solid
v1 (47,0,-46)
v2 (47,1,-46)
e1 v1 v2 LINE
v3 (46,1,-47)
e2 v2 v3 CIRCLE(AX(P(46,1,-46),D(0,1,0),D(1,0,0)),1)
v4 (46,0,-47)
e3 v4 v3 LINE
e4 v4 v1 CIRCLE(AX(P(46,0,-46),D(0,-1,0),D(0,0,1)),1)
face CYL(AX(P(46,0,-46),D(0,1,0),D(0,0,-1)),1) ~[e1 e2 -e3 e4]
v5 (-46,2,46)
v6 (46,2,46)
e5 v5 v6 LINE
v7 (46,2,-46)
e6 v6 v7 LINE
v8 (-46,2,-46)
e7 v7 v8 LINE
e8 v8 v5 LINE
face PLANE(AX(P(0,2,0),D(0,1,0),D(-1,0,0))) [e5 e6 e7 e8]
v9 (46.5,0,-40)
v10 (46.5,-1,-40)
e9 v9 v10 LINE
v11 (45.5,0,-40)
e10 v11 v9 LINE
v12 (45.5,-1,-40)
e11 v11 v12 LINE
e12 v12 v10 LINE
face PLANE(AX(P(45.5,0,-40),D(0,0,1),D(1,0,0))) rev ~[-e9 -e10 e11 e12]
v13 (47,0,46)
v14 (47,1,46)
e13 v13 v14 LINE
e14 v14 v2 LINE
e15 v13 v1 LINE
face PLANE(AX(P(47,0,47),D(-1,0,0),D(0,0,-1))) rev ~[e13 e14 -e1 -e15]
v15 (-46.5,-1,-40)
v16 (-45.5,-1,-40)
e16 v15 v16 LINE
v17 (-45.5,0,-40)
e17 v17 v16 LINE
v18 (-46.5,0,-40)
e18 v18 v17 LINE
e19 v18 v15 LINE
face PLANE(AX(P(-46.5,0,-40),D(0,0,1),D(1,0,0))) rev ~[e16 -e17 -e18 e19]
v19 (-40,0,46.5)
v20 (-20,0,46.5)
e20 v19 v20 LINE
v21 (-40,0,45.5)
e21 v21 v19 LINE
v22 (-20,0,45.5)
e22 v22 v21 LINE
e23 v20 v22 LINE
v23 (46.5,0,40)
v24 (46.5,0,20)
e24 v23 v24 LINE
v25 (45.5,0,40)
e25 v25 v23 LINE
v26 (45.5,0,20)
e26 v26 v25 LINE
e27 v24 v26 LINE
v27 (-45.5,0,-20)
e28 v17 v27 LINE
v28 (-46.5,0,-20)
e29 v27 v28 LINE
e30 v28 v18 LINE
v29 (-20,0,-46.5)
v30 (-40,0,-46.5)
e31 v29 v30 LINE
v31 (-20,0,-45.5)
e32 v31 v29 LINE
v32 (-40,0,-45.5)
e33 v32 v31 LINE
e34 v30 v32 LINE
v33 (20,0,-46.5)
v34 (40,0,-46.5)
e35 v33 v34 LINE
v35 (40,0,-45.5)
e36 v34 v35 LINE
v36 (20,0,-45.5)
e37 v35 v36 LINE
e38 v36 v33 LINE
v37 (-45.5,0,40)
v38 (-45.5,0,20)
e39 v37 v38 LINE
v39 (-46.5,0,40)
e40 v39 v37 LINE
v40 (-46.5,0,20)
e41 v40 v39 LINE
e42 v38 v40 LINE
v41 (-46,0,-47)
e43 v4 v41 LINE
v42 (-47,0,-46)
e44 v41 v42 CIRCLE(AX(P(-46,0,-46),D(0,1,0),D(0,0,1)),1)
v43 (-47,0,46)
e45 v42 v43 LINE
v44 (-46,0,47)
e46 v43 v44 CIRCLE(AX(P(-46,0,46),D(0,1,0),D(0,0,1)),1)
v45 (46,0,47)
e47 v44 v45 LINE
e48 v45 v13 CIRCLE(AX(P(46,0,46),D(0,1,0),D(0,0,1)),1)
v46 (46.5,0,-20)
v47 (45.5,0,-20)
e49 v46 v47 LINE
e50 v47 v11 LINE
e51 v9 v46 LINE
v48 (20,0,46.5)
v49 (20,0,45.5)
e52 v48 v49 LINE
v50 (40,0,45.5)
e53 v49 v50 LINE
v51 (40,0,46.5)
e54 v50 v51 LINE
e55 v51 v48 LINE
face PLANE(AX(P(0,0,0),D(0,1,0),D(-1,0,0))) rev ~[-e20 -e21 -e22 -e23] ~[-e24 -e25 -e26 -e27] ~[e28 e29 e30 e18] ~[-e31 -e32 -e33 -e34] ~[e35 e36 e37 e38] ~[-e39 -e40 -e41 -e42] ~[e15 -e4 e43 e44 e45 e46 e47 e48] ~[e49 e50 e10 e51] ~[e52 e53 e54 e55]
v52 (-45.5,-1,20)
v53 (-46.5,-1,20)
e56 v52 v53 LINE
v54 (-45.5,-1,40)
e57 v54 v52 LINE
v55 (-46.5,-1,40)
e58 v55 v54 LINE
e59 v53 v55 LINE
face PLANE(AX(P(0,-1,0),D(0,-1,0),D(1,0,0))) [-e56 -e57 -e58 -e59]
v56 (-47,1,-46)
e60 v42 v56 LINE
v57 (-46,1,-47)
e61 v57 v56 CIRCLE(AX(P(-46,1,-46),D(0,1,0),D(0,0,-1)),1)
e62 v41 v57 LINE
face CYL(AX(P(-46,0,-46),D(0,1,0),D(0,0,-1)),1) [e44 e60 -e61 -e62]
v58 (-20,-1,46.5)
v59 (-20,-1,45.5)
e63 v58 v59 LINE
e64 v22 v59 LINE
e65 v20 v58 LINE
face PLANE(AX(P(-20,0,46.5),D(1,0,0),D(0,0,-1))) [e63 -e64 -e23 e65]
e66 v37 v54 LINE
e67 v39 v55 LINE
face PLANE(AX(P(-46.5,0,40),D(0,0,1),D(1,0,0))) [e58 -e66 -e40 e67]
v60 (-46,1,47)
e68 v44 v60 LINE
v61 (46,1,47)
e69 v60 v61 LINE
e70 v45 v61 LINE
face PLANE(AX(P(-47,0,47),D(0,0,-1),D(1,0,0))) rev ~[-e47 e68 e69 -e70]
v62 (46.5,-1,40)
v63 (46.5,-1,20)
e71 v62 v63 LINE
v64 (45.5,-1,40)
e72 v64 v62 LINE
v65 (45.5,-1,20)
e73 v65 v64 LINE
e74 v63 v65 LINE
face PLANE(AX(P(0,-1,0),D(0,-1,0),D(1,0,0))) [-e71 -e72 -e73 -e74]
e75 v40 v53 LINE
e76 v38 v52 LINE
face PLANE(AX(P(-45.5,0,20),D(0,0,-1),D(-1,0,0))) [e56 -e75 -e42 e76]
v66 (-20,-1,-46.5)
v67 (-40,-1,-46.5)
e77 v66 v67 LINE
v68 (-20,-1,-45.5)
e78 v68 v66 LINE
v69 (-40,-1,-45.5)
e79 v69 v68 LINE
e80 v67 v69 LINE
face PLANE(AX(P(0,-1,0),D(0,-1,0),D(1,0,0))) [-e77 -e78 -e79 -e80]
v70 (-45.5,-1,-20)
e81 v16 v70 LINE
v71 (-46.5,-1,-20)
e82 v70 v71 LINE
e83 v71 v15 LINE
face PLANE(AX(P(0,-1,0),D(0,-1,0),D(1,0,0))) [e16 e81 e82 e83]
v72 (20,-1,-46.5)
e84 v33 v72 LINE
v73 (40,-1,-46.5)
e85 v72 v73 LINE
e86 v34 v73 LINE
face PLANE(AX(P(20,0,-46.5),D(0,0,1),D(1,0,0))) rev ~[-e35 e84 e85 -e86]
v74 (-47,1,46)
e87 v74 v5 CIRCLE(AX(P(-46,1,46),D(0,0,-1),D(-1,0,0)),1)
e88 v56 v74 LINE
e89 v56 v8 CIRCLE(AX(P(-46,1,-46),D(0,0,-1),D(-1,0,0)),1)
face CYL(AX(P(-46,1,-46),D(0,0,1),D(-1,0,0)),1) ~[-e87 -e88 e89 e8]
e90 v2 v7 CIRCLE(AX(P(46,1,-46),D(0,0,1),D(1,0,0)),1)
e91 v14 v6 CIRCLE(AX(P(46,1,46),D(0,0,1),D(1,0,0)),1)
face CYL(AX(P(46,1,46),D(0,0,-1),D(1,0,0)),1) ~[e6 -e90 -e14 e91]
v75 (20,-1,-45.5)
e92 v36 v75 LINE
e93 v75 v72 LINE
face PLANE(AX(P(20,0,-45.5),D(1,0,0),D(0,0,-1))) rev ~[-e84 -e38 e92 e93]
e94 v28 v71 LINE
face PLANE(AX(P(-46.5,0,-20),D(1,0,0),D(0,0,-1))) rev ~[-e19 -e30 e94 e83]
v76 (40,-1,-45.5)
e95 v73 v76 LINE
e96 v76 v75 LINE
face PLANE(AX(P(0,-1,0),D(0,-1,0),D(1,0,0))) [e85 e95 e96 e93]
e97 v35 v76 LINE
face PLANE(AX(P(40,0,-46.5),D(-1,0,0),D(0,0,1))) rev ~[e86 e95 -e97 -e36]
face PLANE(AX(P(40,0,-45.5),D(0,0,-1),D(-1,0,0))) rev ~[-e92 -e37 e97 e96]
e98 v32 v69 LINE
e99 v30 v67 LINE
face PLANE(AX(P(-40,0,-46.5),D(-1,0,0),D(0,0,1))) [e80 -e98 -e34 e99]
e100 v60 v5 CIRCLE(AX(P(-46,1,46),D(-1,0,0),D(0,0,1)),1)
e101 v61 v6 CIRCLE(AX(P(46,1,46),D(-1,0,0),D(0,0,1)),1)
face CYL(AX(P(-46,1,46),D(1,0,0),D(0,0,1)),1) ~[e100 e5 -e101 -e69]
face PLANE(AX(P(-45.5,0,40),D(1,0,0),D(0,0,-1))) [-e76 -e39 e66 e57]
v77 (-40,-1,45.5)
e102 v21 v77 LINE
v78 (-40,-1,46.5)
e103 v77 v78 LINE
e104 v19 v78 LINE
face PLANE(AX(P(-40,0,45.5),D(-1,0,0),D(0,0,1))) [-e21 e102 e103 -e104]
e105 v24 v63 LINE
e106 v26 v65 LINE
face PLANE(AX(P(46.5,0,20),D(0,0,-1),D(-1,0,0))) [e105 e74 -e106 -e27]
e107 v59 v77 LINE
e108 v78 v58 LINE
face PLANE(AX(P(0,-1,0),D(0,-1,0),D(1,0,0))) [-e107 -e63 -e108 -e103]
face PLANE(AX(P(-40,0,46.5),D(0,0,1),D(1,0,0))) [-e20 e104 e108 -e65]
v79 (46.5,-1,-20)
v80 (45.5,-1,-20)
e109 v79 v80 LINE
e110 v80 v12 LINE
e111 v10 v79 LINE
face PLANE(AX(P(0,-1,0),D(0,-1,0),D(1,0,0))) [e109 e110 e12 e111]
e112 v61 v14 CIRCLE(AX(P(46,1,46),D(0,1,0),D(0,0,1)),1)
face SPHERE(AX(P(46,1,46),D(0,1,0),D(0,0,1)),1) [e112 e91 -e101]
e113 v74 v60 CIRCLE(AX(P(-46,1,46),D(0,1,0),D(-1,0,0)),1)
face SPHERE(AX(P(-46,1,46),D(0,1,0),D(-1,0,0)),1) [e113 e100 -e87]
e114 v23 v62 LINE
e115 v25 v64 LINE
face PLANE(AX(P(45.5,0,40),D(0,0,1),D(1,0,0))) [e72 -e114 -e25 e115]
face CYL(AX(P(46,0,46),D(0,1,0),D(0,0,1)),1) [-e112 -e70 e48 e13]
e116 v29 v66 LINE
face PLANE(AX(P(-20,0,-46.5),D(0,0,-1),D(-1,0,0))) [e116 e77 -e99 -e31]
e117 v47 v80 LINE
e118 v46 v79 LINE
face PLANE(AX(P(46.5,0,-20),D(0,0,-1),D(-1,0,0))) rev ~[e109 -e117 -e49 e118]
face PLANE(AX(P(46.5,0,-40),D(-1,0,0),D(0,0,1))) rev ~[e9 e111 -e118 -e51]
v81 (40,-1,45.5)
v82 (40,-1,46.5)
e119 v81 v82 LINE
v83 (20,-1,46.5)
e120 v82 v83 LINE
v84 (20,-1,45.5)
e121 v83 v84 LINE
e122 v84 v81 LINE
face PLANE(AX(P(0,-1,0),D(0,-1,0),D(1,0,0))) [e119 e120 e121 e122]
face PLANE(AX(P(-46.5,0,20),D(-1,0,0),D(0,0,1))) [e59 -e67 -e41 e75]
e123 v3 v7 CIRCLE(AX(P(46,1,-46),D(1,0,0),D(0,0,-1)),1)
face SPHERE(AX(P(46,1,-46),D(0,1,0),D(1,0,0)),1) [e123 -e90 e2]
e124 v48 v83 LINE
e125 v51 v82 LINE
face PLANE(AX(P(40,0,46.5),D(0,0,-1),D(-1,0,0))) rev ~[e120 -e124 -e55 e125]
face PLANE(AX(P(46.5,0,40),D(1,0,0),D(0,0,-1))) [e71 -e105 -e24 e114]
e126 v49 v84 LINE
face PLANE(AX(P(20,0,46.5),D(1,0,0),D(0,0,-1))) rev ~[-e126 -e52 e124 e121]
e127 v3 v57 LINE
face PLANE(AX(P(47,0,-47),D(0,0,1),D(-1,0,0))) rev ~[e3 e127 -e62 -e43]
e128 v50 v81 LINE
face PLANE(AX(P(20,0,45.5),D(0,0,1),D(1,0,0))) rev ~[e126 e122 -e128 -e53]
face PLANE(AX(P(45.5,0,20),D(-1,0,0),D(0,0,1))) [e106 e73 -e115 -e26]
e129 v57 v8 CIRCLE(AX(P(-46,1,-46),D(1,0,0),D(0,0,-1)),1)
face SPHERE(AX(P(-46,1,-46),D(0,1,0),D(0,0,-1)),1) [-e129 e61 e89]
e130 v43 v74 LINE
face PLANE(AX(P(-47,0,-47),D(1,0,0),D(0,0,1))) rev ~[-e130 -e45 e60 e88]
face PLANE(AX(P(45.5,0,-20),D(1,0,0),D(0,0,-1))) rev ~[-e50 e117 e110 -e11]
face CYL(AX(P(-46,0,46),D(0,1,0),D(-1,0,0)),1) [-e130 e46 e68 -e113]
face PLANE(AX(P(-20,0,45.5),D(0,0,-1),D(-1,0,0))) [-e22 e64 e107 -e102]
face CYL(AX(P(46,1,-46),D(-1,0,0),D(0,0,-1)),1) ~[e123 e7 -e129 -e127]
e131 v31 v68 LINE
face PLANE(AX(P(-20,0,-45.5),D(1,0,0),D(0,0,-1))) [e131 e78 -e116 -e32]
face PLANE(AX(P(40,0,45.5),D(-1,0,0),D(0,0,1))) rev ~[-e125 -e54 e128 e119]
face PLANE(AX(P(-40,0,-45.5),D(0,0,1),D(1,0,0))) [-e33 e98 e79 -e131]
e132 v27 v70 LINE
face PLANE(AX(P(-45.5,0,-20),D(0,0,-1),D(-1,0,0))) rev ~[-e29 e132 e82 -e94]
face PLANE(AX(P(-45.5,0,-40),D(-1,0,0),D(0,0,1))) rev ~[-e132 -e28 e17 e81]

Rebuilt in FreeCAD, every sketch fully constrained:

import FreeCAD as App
import Part
import Sketcher

V = App.Vector
Q = App.Units.Quantity


def edges_at(feature, points):
    """Names of the edges that pass closest to the given points."""
    edges = feature.Shape.Edges
    near = lambda p: min(range(len(edges)), key=lambda i: edges[i].distToShape(Part.Vertex(*p))[0])
    return sorted({f"Edge{near(p) + 1}" for p in points})

doc = App.newDocument("Part")
body = doc.addObject("PartDesign::Body", "Body")

# Sketch on XZ plane
sketch1 = body.newObject("Sketcher::SketchObject", "Sketch")
sketch1.AttachmentSupport = (doc.getObject("XZ_Plane"), [""])
sketch1.MapMode = "FlatFace"
sketch1.addGeometry([
    Part.LineSegment(V(-47, -47, 0), V(-47, 47, 0)),
    Part.LineSegment(V(-47, 47, 0), V(47, 47, 0)),
    Part.LineSegment(V(47, 47, 0), V(47, -47, 0)),
    Part.LineSegment(V(47, -47, 0), V(-47, -47, 0)),
], False)
sketch1.addConstraint([
    Sketcher.Constraint("Coincident", 0, 2, 1, 1),
    Sketcher.Constraint("Coincident", 1, 2, 2, 1),
    Sketcher.Constraint("Coincident", 2, 2, 3, 1),
    Sketcher.Constraint("Coincident", 3, 2, 0, 1),
    Sketcher.Constraint("Vertical", 0),
    Sketcher.Constraint("Horizontal", 1),
    Sketcher.Constraint("Vertical", 2),
    Sketcher.Constraint("Horizontal", 3),
    Sketcher.Constraint("Symmetric", 0, 2, 2, 2, -1, 1),
    Sketcher.Constraint("Equal", 3, 0),
    Sketcher.Constraint("DistanceX", 1, 1, 1, 2, Q("94 mm")),
])
pad1 = body.newObject("PartDesign::Pad", "Pad")
pad1.Profile = sketch1
pad1.Length = 2
pad1.Reversed = True

# Sketch on XZ plane
sketch2 = body.newObject("Sketcher::SketchObject", "Sketch001")
sketch2.AttachmentSupport = (doc.getObject("XZ_Plane"), [""])
sketch2.MapMode = "FlatFace"
sketch2.addGeometry([
    Part.LineSegment(V(-46.5, -20, 0), V(-46.5, -40, 0)),  # 0
    Part.LineSegment(V(-46.5, -40, 0), V(-45.5, -40, 0)),  # 1
    Part.LineSegment(V(-45.5, -40, 0), V(-45.5, -20, 0)),  # 2
    Part.LineSegment(V(-45.5, -20, 0), V(-46.5, -20, 0)),  # 3
    Part.LineSegment(V(-46.5, 20, 0), V(-45.5, 20, 0)),  # 4
    Part.LineSegment(V(-45.5, 20, 0), V(-45.5, 40, 0)),  # 5
    Part.LineSegment(V(-45.5, 40, 0), V(-46.5, 40, 0)),  # 6
    Part.LineSegment(V(-46.5, 40, 0), V(-46.5, 20, 0)),  # 7
    Part.LineSegment(V(-20, 46.5, 0), V(-40, 46.5, 0)),  # 8
    Part.LineSegment(V(-40, 46.5, 0), V(-40, 45.5, 0)),  # 9
    Part.LineSegment(V(-40, 45.5, 0), V(-20, 45.5, 0)),  # 10
    Part.LineSegment(V(-20, 45.5, 0), V(-20, 46.5, 0)),  # 11
    Part.LineSegment(V(40, 45.5, 0), V(40, 46.5, 0)),  # 12
    Part.LineSegment(V(40, 46.5, 0), V(20, 46.5, 0)),  # 13
    Part.LineSegment(V(20, 46.5, 0), V(20, 45.5, 0)),  # 14
    Part.LineSegment(V(20, 45.5, 0), V(40, 45.5, 0)),  # 15
    Part.LineSegment(V(46.5, 40, 0), V(45.5, 40, 0)),  # 16
    Part.LineSegment(V(45.5, 40, 0), V(45.5, 20, 0)),  # 17
    Part.LineSegment(V(45.5, 20, 0), V(46.5, 20, 0)),  # 18
    Part.LineSegment(V(46.5, 20, 0), V(46.5, 40, 0)),  # 19
    Part.LineSegment(V(45.5, -20, 0), V(45.5, -40, 0)),  # 20
    Part.LineSegment(V(45.5, -40, 0), V(46.5, -40, 0)),  # 21
    Part.LineSegment(V(46.5, -40, 0), V(46.5, -20, 0)),  # 22
    Part.LineSegment(V(46.5, -20, 0), V(45.5, -20, 0)),  # 23
    Part.LineSegment(V(40, -46.5, 0), V(40, -45.5, 0)),  # 24
    Part.LineSegment(V(40, -45.5, 0), V(20, -45.5, 0)),  # 25
    Part.LineSegment(V(20, -45.5, 0), V(20, -46.5, 0)),  # 26
    Part.LineSegment(V(20, -46.5, 0), V(40, -46.5, 0)),  # 27
    Part.LineSegment(V(-20, -45.5, 0), V(-40, -45.5, 0)),  # 28
    Part.LineSegment(V(-40, -45.5, 0), V(-40, -46.5, 0)),  # 29
    Part.LineSegment(V(-40, -46.5, 0), V(-20, -46.5, 0)),  # 30
    Part.LineSegment(V(-20, -46.5, 0), V(-20, -45.5, 0)),  # 31
], False)
sketch2.addConstraint([
    Sketcher.Constraint("Coincident", 0, 2, 1, 1),
    Sketcher.Constraint("Coincident", 1, 2, 2, 1),
    Sketcher.Constraint("Coincident", 2, 2, 3, 1),
    Sketcher.Constraint("Coincident", 3, 2, 0, 1),
    Sketcher.Constraint("Coincident", 4, 2, 5, 1),
    Sketcher.Constraint("Coincident", 5, 2, 6, 1),
    Sketcher.Constraint("Coincident", 6, 2, 7, 1),
    Sketcher.Constraint("Coincident", 7, 2, 4, 1),
    Sketcher.Constraint("Coincident", 8, 2, 9, 1),
    Sketcher.Constraint("Coincident", 9, 2, 10, 1),
    Sketcher.Constraint("Coincident", 10, 2, 11, 1),
    Sketcher.Constraint("Coincident", 11, 2, 8, 1),
    Sketcher.Constraint("Coincident", 12, 2, 13, 1),
    Sketcher.Constraint("Coincident", 13, 2, 14, 1),
    Sketcher.Constraint("Coincident", 14, 2, 15, 1),
    Sketcher.Constraint("Coincident", 15, 2, 12, 1),
    Sketcher.Constraint("Coincident", 16, 2, 17, 1),
    Sketcher.Constraint("Coincident", 17, 2, 18, 1),
    Sketcher.Constraint("Coincident", 18, 2, 19, 1),
    Sketcher.Constraint("Coincident", 19, 2, 16, 1),
    Sketcher.Constraint("Coincident", 20, 2, 21, 1),
    Sketcher.Constraint("Coincident", 21, 2, 22, 1),
    Sketcher.Constraint("Coincident", 22, 2, 23, 1),
    Sketcher.Constraint("Coincident", 23, 2, 20, 1),
    Sketcher.Constraint("Coincident", 24, 2, 25, 1),
    Sketcher.Constraint("Coincident", 25, 2, 26, 1),
    Sketcher.Constraint("Coincident", 26, 2, 27, 1),
    Sketcher.Constraint("Coincident", 27, 2, 24, 1),
    Sketcher.Constraint("Coincident", 28, 2, 29, 1),
    Sketcher.Constraint("Coincident", 29, 2, 30, 1),
    Sketcher.Constraint("Coincident", 30, 2, 31, 1),
    Sketcher.Constraint("Coincident", 31, 2, 28, 1),
    Sketcher.Constraint("Vertical", 0),
    Sketcher.Constraint("Horizontal", 1),
    Sketcher.Constraint("Vertical", 2),
    Sketcher.Constraint("Horizontal", 3),
    Sketcher.Constraint("Horizontal", 4),
    Sketcher.Constraint("Vertical", 5),
    Sketcher.Constraint("Horizontal", 6),
    Sketcher.Constraint("Vertical", 7),
    Sketcher.Constraint("Horizontal", 8),
    Sketcher.Constraint("Vertical", 9),
    Sketcher.Constraint("Horizontal", 10),
    Sketcher.Constraint("Vertical", 11),
    Sketcher.Constraint("Vertical", 12),
    Sketcher.Constraint("Horizontal", 13),
    Sketcher.Constraint("Vertical", 14),
    Sketcher.Constraint("Horizontal", 15),
    Sketcher.Constraint("Horizontal", 16),
    Sketcher.Constraint("Vertical", 17),
    Sketcher.Constraint("Horizontal", 18),
    Sketcher.Constraint("Vertical", 19),
    Sketcher.Constraint("Vertical", 20),
    Sketcher.Constraint("Horizontal", 21),
    Sketcher.Constraint("Vertical", 22),
    Sketcher.Constraint("Horizontal", 23),
    Sketcher.Constraint("Vertical", 24),
    Sketcher.Constraint("Horizontal", 25),
    Sketcher.Constraint("Vertical", 26),
    Sketcher.Constraint("Horizontal", 27),
    Sketcher.Constraint("Horizontal", 28),
    Sketcher.Constraint("Vertical", 29),
    Sketcher.Constraint("Horizontal", 30),
    Sketcher.Constraint("Vertical", 31),
    Sketcher.Constraint("Symmetric", 1, 2, 16, 2, -1, 1),
    Sketcher.Constraint("Symmetric", 3, 2, 18, 2, -1, 1),
    Sketcher.Constraint("Symmetric", 5, 2, 20, 2, -1, 1),
    Sketcher.Constraint("Symmetric", 7, 2, 22, 2, -1, 1),
    Sketcher.Constraint("Symmetric", 9, 2, 24, 2, -1, 1),
    Sketcher.Constraint("Symmetric", 11, 2, 26, 2, -1, 1),
    Sketcher.Constraint("Symmetric", 15, 2, 28, 2, -1, 1),
    Sketcher.Constraint("Symmetric", 13, 2, 30, 2, -1, 1),
    Sketcher.Constraint("Symmetric", 8, 2, 12, 2, -2),
    Sketcher.Constraint("Symmetric", 10, 2, 14, 2, -2),
    Sketcher.Constraint("Symmetric", 5, 2, 16, 2, -2),
    Sketcher.Constraint("Symmetric", 7, 2, 18, 2, -2),
    Sketcher.Constraint("Equal", 30, 0),
    Sketcher.Constraint("Equal", 23, 9),
    Sketcher.Constraint("DistanceX", 1, 1, 1, 2, Q("1 mm")),
    Sketcher.Constraint("DistanceX", 8, 2, 8, 1, Q("20 mm")),
    Sketcher.Constraint("DistanceY", 2, 2, -1, 1, Q("20 mm")),
    Sketcher.Constraint("DistanceX", 10, 2, -1, 1, Q("20 mm")),
    Sketcher.Constraint("DistanceX", 0, 2, -1, 1, Q("46.5 mm")),
    Sketcher.Constraint("DistanceY", -1, 1, 8, 2, Q("46.5 mm")),
])
pad2 = body.newObject("PartDesign::Pad", "Pad001")
pad2.Profile = sketch2
pad2.Length = 1
doc.recompute()

fillet = body.newObject("PartDesign::Fillet", "Fillet")
fillet.Base = (pad2, edges_at(pad2, [(47, 1, -47)]))
fillet.Radius = 1
doc.recompute()

fillet2 = body.newObject("PartDesign::Fillet", "Fillet001")
fillet2.Base = (fillet, edges_at(fillet, [(-47, 1, -47)]))
fillet2.Radius = 1
doc.recompute()

fillet3 = body.newObject("PartDesign::Fillet", "Fillet002")
fillet3.Base = (fillet2, edges_at(fillet2, [(-47, 1, 47)]))
fillet3.Radius = 1
doc.recompute()

fillet4 = body.newObject("PartDesign::Fillet", "Fillet003")
fillet4.Base = (fillet3, edges_at(fillet3, [(47, 1, 47)]))
fillet4.Radius = 1
doc.recompute()

fillet5 = body.newObject("PartDesign::Fillet", "Fillet004")
fillet5.Base = (fillet4, edges_at(fillet4, [
    (-46.707, 2, -46.707),
    (-47, 2, 0),
    (-46.707, 2, 46.707),
    (0, 2, 47),
    (46.707, 2, 46.707),
    (47, 2, 0),
    (46.707, 2, -46.707),
    (0, 2, -47),
]))
fillet5.Radius = 1

doc.recompute()
